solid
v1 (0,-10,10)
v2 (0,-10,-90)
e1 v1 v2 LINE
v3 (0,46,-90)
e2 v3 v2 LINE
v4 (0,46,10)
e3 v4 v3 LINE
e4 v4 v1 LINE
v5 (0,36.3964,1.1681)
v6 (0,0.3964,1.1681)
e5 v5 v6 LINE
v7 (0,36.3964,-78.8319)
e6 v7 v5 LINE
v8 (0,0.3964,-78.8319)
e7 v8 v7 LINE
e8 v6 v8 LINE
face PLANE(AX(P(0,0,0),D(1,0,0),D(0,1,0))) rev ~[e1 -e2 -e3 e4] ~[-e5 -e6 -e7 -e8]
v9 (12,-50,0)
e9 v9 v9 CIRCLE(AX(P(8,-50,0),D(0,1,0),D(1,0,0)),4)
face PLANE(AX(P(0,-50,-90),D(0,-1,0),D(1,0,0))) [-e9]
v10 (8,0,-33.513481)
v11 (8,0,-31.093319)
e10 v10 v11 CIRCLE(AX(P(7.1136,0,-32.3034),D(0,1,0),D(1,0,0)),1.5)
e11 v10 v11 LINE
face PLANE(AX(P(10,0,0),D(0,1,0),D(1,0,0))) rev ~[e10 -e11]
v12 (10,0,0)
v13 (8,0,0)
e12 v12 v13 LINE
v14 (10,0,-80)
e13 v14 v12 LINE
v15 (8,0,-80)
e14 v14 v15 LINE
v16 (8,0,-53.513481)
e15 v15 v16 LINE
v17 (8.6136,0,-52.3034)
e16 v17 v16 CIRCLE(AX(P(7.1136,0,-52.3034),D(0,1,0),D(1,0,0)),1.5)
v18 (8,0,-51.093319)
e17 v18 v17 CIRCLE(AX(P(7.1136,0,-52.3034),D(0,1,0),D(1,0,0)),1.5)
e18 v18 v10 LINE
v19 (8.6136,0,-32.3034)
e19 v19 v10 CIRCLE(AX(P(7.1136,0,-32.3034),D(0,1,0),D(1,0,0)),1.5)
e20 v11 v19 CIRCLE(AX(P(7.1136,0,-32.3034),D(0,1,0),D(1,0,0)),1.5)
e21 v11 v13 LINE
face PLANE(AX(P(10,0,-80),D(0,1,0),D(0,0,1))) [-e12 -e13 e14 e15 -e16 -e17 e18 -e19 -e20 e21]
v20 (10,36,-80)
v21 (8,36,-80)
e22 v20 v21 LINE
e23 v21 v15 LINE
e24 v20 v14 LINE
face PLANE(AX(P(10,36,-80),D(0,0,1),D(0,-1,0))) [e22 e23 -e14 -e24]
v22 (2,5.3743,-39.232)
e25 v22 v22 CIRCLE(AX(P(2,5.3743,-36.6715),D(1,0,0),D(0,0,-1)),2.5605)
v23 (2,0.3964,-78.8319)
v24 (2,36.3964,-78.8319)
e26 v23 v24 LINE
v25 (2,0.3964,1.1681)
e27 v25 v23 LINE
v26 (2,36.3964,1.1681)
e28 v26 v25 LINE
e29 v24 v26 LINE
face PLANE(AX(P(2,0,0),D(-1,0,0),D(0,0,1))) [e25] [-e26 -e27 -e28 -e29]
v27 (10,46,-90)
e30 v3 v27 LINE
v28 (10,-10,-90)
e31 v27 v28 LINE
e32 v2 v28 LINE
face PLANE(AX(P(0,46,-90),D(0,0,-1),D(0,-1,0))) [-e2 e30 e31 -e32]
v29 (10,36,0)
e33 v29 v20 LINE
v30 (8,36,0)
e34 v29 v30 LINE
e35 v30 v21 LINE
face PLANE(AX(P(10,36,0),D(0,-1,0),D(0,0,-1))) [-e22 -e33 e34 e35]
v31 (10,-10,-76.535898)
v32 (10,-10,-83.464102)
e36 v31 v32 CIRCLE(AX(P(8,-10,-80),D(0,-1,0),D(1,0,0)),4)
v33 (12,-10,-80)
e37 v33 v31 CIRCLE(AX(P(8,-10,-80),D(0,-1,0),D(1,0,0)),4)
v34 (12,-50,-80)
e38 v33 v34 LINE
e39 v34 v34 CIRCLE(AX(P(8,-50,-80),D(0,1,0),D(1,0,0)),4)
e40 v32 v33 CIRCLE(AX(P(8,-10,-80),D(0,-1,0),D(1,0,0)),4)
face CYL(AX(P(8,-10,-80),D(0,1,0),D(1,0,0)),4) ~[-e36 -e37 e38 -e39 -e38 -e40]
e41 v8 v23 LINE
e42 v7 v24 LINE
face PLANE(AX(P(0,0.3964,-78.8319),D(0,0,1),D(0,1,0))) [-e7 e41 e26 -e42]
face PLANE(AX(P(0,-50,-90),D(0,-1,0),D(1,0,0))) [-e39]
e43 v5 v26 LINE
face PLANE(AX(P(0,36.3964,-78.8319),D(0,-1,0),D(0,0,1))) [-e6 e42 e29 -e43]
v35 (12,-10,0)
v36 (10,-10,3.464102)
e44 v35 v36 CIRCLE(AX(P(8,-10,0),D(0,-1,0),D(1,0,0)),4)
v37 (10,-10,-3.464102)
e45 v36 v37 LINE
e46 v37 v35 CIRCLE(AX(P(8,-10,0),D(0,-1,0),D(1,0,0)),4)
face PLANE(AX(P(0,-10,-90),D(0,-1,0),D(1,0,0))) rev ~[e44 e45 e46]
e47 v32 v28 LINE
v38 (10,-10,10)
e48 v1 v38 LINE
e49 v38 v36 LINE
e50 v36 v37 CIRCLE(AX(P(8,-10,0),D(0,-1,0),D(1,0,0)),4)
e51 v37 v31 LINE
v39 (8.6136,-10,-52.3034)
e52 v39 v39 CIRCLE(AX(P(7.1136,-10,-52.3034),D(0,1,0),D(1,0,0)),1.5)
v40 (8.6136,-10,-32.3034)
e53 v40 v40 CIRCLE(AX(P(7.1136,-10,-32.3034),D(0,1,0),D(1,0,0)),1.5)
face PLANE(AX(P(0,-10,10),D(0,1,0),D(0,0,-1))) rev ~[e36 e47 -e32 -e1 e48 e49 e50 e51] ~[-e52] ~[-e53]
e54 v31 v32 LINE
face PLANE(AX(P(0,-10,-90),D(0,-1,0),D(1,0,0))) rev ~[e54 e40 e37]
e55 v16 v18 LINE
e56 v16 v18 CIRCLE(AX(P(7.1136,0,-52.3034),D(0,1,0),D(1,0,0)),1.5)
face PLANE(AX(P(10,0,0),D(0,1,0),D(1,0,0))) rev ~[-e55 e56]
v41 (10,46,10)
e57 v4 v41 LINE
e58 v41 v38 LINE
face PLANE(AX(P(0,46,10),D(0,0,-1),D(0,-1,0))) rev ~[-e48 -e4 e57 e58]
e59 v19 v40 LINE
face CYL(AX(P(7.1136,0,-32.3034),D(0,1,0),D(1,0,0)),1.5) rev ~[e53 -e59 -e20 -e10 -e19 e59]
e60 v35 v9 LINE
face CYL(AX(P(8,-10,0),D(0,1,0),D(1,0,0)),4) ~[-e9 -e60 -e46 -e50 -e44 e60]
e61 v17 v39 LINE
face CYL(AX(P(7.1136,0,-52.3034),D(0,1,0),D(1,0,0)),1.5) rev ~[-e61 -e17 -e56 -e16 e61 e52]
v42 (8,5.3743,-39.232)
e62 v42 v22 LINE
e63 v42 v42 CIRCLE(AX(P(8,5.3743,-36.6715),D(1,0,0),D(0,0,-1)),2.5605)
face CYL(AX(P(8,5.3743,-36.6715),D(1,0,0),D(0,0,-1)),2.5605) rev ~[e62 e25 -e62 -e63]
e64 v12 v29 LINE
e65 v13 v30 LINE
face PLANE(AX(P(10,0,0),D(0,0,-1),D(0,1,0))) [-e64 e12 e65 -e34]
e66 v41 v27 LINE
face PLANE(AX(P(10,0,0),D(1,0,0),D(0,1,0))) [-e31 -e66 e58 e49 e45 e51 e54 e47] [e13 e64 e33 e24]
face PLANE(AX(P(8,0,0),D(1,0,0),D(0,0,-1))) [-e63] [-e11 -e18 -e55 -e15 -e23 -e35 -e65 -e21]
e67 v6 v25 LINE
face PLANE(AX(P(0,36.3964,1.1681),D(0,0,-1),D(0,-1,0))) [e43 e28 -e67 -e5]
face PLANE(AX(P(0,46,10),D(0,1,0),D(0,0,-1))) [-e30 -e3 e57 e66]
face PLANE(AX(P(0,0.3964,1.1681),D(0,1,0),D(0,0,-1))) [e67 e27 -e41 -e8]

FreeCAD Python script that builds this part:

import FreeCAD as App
import Part
import Sketcher
from FreeCAD import Vector


def add_polygon(sketch, points):
    """Adds a closed chain of lines whose ends are joined by coincident constraints."""
    first, n = sketch.GeometryCount, len(points)
    for a, b in zip(points, points[1:] + points[:1]):
        sketch.addGeometry(Part.LineSegment(App.Vector(*a, 0), App.Vector(*b, 0)), False)
    for i in range(n):
        sketch.addConstraint(Sketcher.Constraint("Coincident", first + i, 2, first + (i + 1) % n, 1))

doc = App.newDocument("Part")
params = doc.addObject("Spreadsheet::Sheet", "Params")
for row, (alias, value) in enumerate([
    ("sketch1_height", "100 mm"),
    ("sketch1_width", "56 mm"),
    ("pad1_length", "10 mm"),
    ("sketch2_width", "36 mm"),
    ("sketch2_height", "80 mm"),
    ("pocket1_length", "2 mm"),
    ("sketch3_diameter", "3 mm"),
    ("sketch5_diameter", "8 mm"),
    ("pad2_length", "40 mm"),
    ("sketch6_width", "36 mm"),
    ("sketch6_height", "80 mm"),
    ("pocket4_length", "2 mm"),
], start=1):
    params.set(f"A{row}", alias)
    params.set(f"B{row}", "=" + value)
    params.setAlias(f"B{row}", alias)

body = doc.addObject("PartDesign::Body", "Body")

# Sketch on YZ plane
sketch1 = body.newObject("Sketcher::SketchObject", "Sketch")
sketch1.AttachmentSupport = (doc.getObject("YZ_Plane"), [""])
sketch1.MapMode = "FlatFace"
add_polygon(sketch1, [(46, -90), (46, 10), (-10, 10), (-10, -90)])  # lines 0-3
sketch1.addConstraint(Sketcher.Constraint("Vertical", 0))
sketch1.addConstraint(Sketcher.Constraint("Horizontal", 1))
sketch1.addConstraint(Sketcher.Constraint("Vertical", 2))
sketch1.addConstraint(Sketcher.Constraint("Horizontal", 3))
sketch1.addConstraint(Sketcher.Constraint("DistanceY", 0, 1, 0, 2, 100.0))
sketch1.addConstraint(Sketcher.Constraint("DistanceX", 1, 2, 1, 1, 56.0))
sketch1.addConstraint(Sketcher.Constraint("DistanceX", -1, 1, 0, 2, 46.0))
sketch1.addConstraint(Sketcher.Constraint("DistanceY", -1, 1, 0, 2, 10.0))
sketch1.setExpression("Constraints[8]", "Params.sketch1_height")
sketch1.setExpression("Constraints[9]", "Params.sketch1_width")
pad1 = body.newObject("PartDesign::Pad", "Pad")
pad1.Profile = sketch1
pad1.setExpression("Length", "Params.pad1_length")

# Sketch on YZ plane
sketch2 = body.newObject("Sketcher::SketchObject", "Sketch001")
sketch2.AttachmentSupport = (doc.getObject("YZ_Plane"), [""])
sketch2.MapMode = "FlatFace"
sketch2.AttachmentOffset = App.Placement(Vector(0, 0, 10), App.Rotation())
add_polygon(sketch2, [(36, -80), (36, 0), (0, 0), (0, -80)])  # lines 0-3
sketch2.addConstraint(Sketcher.Constraint("Vertical", 0))
sketch2.addConstraint(Sketcher.Constraint("Horizontal", 1))
sketch2.addConstraint(Sketcher.Constraint("Vertical", 2))
sketch2.addConstraint(Sketcher.Constraint("Horizontal", 3))
sketch2.addConstraint(Sketcher.Constraint("Coincident", 1, 2, -1, 1))
sketch2.addConstraint(Sketcher.Constraint("DistanceX", 1, 2, 1, 1, 36.0))
sketch2.addConstraint(Sketcher.Constraint("DistanceY", 0, 1, 0, 2, 80.0))
sketch2.setExpression("Constraints[9]", "Params.sketch2_width")
sketch2.setExpression("Constraints[10]", "Params.sketch2_height")
pocket1 = body.newObject("PartDesign::Pocket", "Pocket")
pocket1.Profile = sketch2
pocket1.setExpression("Length", "Params.pocket1_length")

# Sketch on XZ plane
sketch3 = body.newObject("Sketcher::SketchObject", "Sketch002")
sketch3.AttachmentSupport = (doc.getObject("XZ_Plane"), [""])
sketch3.MapMode = "FlatFace"
sketch3.addGeometry(Part.Circle(Vector(7.1136, -52.3034, 0), Vector(0, 0, 1), 1.5), False)
sketch3.addGeometry(Part.Circle(Vector(7.1136, -32.3034, 0), Vector(0, 0, 1), 1.5), False)
sketch3.addConstraint(Sketcher.Constraint("Equal", 0, 1))
sketch3.addConstraint(Sketcher.Constraint("Vertical", 0, 3, 1, 3))
sketch3.addConstraint(Sketcher.Constraint("Diameter", 0, 3.0))
sketch3.addConstraint(Sketcher.Constraint("DistanceY", 0, 3, 1, 3, 20.0))
sketch3.addConstraint(Sketcher.Constraint("DistanceY", 1, 3, -1, 1, 32.3034))
sketch3.addConstraint(Sketcher.Constraint("DistanceX", -1, 1, 0, 3, 7.1136))
sketch3.setExpression("Constraints[2]", "Params.sketch3_diameter")
pocket2 = body.newObject("PartDesign::Pocket", "Pocket001")
pocket2.Profile = sketch3
pocket2.Type = "ThroughAll"
pocket2.Reversed = True

# Sketch on YZ plane
sketch4 = body.newObject("Sketcher::SketchObject", "Sketch003")
sketch4.AttachmentSupport = (doc.getObject("YZ_Plane"), [""])
sketch4.MapMode = "FlatFace"
sketch4.AttachmentOffset = App.Placement(Vector(0, 0, 8), App.Rotation())
sketch4.addGeometry(Part.Circle(Vector(5.3743, -36.6715, 0), Vector(0, 0, 1), 2.5605), False)
sketch4.addConstraint(Sketcher.Constraint("Diameter", 0, 5.121))
sketch4.addConstraint(Sketcher.Constraint("DistanceX", -1, 1, 0, 3, 5.3743))
sketch4.addConstraint(Sketcher.Constraint("DistanceY", 0, 3, -1, 1, 36.6715))
pocket3 = body.newObject("PartDesign::Pocket", "Pocket002")
pocket3.Profile = sketch4
pocket3.Type = "ThroughAll"

# Sketch on XZ plane
sketch5 = body.newObject("Sketcher::SketchObject", "Sketch004")
sketch5.AttachmentSupport = (doc.getObject("XZ_Plane"), [""])
sketch5.MapMode = "FlatFace"
sketch5.AttachmentOffset = App.Placement(Vector(0, 0, 10), App.Rotation())
sketch5.addGeometry(Part.Circle(Vector(8, 0, 0), Vector(0, 0, 1), 4), False)
sketch5.addGeometry(Part.Circle(Vector(8, -80, 0), Vector(0, 0, 1), 4), False)
sketch5.addConstraint(Sketcher.Constraint("Equal", 0, 1))
sketch5.addConstraint(Sketcher.Constraint("PointOnObject", 0, 3, -1))
sketch5.addConstraint(Sketcher.Constraint("Vertical", 0, 3, 1, 3))
sketch5.addConstraint(Sketcher.Constraint("Diameter", 0, 8.0))
sketch5.addConstraint(Sketcher.Constraint("DistanceX", -1, 1, 0, 3, 8.0))
sketch5.addConstraint(Sketcher.Constraint("DistanceY", 1, 3, -1, 1, 80.0))
sketch5.setExpression("Constraints[3]", "Params.sketch5_diameter")
pad2 = body.newObject("PartDesign::Pad", "Pad001")
pad2.Profile = sketch5
pad2.setExpression("Length", "Params.pad2_length")

# Sketch on YZ plane
sketch6 = body.newObject("Sketcher::SketchObject", "Sketch005")
sketch6.AttachmentSupport = (doc.getObject("YZ_Plane"), [""])
sketch6.MapMode = "FlatFace"
add_polygon(sketch6, [(36.3964, 1.1681), (36.3964, -78.8319), (0.3964, -78.8319), (0.3964, 1.1681)])  # lines 0-3
sketch6.addConstraint(Sketcher.Constraint("Vertical", 0))
sketch6.addConstraint(Sketcher.Constraint("Horizontal", 1))
sketch6.addConstraint(Sketcher.Constraint("Vertical", 2))
sketch6.addConstraint(Sketcher.Constraint("Horizontal", 3))
sketch6.addConstraint(Sketcher.Constraint("DistanceX", 1, 2, 1, 1, 36.0))
sketch6.addConstraint(Sketcher.Constraint("DistanceY", 0, 2, 0, 1, 80.0))
sketch6.addConstraint(Sketcher.Constraint("DistanceY", 0, 2, -1, 1, 78.832))
sketch6.addConstraint(Sketcher.Constraint("DistanceX", -1, 1, 0, 2, 36.3964))
sketch6.setExpression("Constraints[8]", "Params.sketch6_width")
sketch6.setExpression("Constraints[9]", "Params.sketch6_height")
pocket4 = body.newObject("PartDesign::Pocket", "Pocket003")
pocket4.Profile = sketch6
pocket4.setExpression("Length", "Params.pocket4_length")
pocket4.Reversed = True

doc.recompute()
